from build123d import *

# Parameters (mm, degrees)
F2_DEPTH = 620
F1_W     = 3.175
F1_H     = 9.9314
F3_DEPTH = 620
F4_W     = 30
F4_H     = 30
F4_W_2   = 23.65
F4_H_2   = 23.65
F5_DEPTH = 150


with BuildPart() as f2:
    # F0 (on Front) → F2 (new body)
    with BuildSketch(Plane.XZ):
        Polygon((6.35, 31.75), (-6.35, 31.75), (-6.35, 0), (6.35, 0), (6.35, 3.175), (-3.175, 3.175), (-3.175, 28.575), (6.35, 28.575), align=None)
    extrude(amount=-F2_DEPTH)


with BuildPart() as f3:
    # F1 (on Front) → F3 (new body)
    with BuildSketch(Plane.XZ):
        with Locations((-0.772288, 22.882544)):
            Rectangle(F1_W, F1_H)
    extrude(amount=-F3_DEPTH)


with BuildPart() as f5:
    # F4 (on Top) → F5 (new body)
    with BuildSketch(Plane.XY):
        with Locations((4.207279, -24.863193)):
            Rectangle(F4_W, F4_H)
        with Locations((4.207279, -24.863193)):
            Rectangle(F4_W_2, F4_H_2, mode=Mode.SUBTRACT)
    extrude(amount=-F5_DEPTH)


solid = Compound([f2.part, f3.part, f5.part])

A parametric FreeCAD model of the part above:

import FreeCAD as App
import Part
import Sketcher
from FreeCAD import Vector
Q = App.Units.Quantity

doc = App.newDocument("Part")
body = doc.addObject("PartDesign::Body", "Body")

# Sketch on XZ plane
sketch1 = body.newObject("Sketcher::SketchObject", "Sketch")
sketch1.AttachmentSupport = (doc.getObject("XZ_Plane"), [""])
sketch1.MapMode = "FlatFace"
sketch1.addGeometry(Part.LineSegment(Vector(6.35, 31.75, 0), Vector(-6.35, 31.75, 0)), False)
sketch1.addGeometry(Part.LineSegment(Vector(-6.35, 31.75, 0), Vector(-6.35, 0, 0)), False)
sketch1.addGeometry(Part.LineSegment(Vector(-6.35, 0, 0), Vector(6.35, 0, 0)), False)
sketch1.addGeometry(Part.LineSegment(Vector(6.35, 0, 0), Vector(6.35, 3.175, 0)), False)
sketch1.addGeometry(Part.LineSegment(Vector(6.35, 3.175, 0), Vector(-3.175, 3.175, 0)), False)
sketch1.addGeometry(Part.LineSegment(Vector(-3.175, 3.175, 0), Vector(-3.175, 28.575, 0)), False)
sketch1.addGeometry(Part.LineSegment(Vector(-3.175, 28.575, 0), Vector(6.35, 28.575, 0)), False)
sketch1.addGeometry(Part.LineSegment(Vector(6.35, 28.575, 0), Vector(6.35, 31.75, 0)), False)
sketch1.addConstraint(Sketcher.Constraint("Coincident", 0, 2, 1, 1))
sketch1.addConstraint(Sketcher.Constraint("Coincident", 1, 2, 2, 1))
sketch1.addConstraint(Sketcher.Constraint("Coincident", 2, 2, 3, 1))
sketch1.addConstraint(Sketcher.Constraint("Coincident", 3, 2, 4, 1))
sketch1.addConstraint(Sketcher.Constraint("Coincident", 4, 2, 5, 1))
sketch1.addConstraint(Sketcher.Constraint("Coincident", 5, 2, 6, 1))
sketch1.addConstraint(Sketcher.Constraint("Coincident", 6, 2, 7, 1))
sketch1.addConstraint(Sketcher.Constraint("Coincident", 7, 2, 0, 1))
sketch1.addConstraint(Sketcher.Constraint("Horizontal", 0))
sketch1.addConstraint(Sketcher.Constraint("Vertical", 1))
sketch1.addConstraint(Sketcher.Constraint("Horizontal", 2))
sketch1.addConstraint(Sketcher.Constraint("Vertical", 3))
sketch1.addConstraint(Sketcher.Constraint("Horizontal", 4))
sketch1.addConstraint(Sketcher.Constraint("Vertical", 5))
sketch1.addConstraint(Sketcher.Constraint("Horizontal", 6))
sketch1.addConstraint(Sketcher.Constraint("Vertical", 7))
sketch1.addConstraint(Sketcher.Constraint("Symmetric", 1, 2, 2, 2, -1, 1))
sketch1.addConstraint(Sketcher.Constraint("Vertical", 3, 2, 6, 2))
sketch1.addConstraint(Sketcher.Constraint("Equal", 3, 7))
sketch1.addConstraint(Sketcher.Constraint("DistanceY", 5, 1, 5, 2, Q("1 in")))
sketch1.addConstraint(Sketcher.Constraint("DistanceX", 0, 2, 0, 1, Q("0.5 in")))
sketch1.addConstraint(Sketcher.Constraint("DistanceY", 1, 2, 1, 1, Q("1.25 in")))
sketch1.addConstraint(Sketcher.Constraint("DistanceX", 4, 2, 4, 1, Q("0.375 in")))
pad1 = body.newObject("PartDesign::Pad", "Pad")
pad1.Profile = sketch1
pad1.Length = 620
pad1.Reversed = True
body2 = doc.addObject("PartDesign::Body", "Body001")

# Sketch on XZ plane
sketch2 = body2.newObject("Sketcher::SketchObject", "Sketch001")
sketch2.AttachmentSupport = (doc.getObject("XZ_Plane001"), [""])
sketch2.MapMode = "FlatFace"
sketch2.addGeometry(Part.LineSegment(Vector(-2.359788, 27.848244, 0), Vector(-2.359788, 17.916844, 0)), False)
sketch2.addGeometry(Part.LineSegment(Vector(-2.359788, 17.916844, 0), Vector(0.815212, 17.916844, 0)), False)
sketch2.addGeometry(Part.LineSegment(Vector(0.815212, 17.916844, 0), Vector(0.815212, 27.848244, 0)), False)
sketch2.addGeometry(Part.LineSegment(Vector(0.815212, 27.848244, 0), Vector(-2.359788, 27.848244, 0)), False)
sketch2.addConstraint(Sketcher.Constraint("Coincident", 0, 2, 1, 1))
sketch2.addConstraint(Sketcher.Constraint("Coincident", 1, 2, 2, 1))
sketch2.addConstraint(Sketcher.Constraint("Coincident", 2, 2, 3, 1))
sketch2.addConstraint(Sketcher.Constraint("Coincident", 3, 2, 0, 1))
sketch2.addConstraint(Sketcher.Constraint("Vertical", 0))
sketch2.addConstraint(Sketcher.Constraint("Horizontal", 1))
sketch2.addConstraint(Sketcher.Constraint("Vertical", 2))
sketch2.addConstraint(Sketcher.Constraint("Horizontal", 3))
sketch2.addConstraint(Sketcher.Constraint("DistanceX", 1, 1, 1, 2, Q("0.125 in")))
sketch2.addConstraint(Sketcher.Constraint("DistanceY", 0, 2, 0, 1, Q("0.391 in")))
sketch2.addConstraint(Sketcher.Constraint("DistanceX", 0, 2, -1, 1, 2.359788))
sketch2.addConstraint(Sketcher.Constraint("DistanceY", -1, 1, 0, 2, 17.916844))
pad2 = body2.newObject("PartDesign::Pad", "Pad001")
pad2.Profile = sketch2
pad2.Length = 620
pad2.Reversed = True
body3 = doc.addObject("PartDesign::Body", "Body002")

# Sketch on XY plane
sketch3 = body3.newObject("Sketcher::SketchObject", "Sketch002")
sketch3.AttachmentSupport = (doc.getObject("XY_Plane002"), [""])
sketch3.MapMode = "FlatFace"
sketch3.addGeometry(Part.LineSegment(Vector(-10.792721, -9.863193, 0), Vector(-10.792721, -39.863193, 0)), False)
sketch3.addGeometry(Part.LineSegment(Vector(-10.792721, -39.863193, 0), Vector(19.207279, -39.863193, 0)), False)
sketch3.addGeometry(Part.LineSegment(Vector(19.207279, -39.863193, 0), Vector(19.207279, -9.863193, 0)), False)
sketch3.addGeometry(Part.LineSegment(Vector(19.207279, -9.863193, 0), Vector(-10.792721, -9.863193, 0)), False)
sketch3.addGeometry(Part.LineSegment(Vector(16.032279, -36.688193, 0), Vector(-7.617721, -36.688193, 0)), False)
sketch3.addGeometry(Part.LineSegment(Vector(-7.617721, -36.688193, 0), Vector(-7.617721, -13.038193, 0)), False)
sketch3.addGeometry(Part.LineSegment(Vector(-7.617721, -13.038193, 0), Vector(16.032279, -13.038193, 0)), False)
sketch3.addGeometry(Part.LineSegment(Vector(16.032279, -13.038193, 0), Vector(16.032279, -36.688193, 0)), False)
sketch3.addConstraint(Sketcher.Constraint("Coincident", 0, 2, 1, 1))
sketch3.addConstraint(Sketcher.Constraint("Coincident", 1, 2, 2, 1))
sketch3.addConstraint(Sketcher.Constraint("Coincident", 2, 2, 3, 1))
sketch3.addConstraint(Sketcher.Constraint("Coincident", 3, 2, 0, 1))
sketch3.addConstraint(Sketcher.Constraint("Coincident", 4, 2, 5, 1))
sketch3.addConstraint(Sketcher.Constraint("Coincident", 5, 2, 6, 1))
sketch3.addConstraint(Sketcher.Constraint("Coincident", 6, 2, 7, 1))
sketch3.addConstraint(Sketcher.Constraint("Coincident", 7, 2, 4, 1))
sketch3.addConstraint(Sketcher.Constraint("Vertical", 0))
sketch3.addConstraint(Sketcher.Constraint("Horizontal", 1))
sketch3.addConstraint(Sketcher.Constraint("Vertical", 2))
sketch3.addConstraint(Sketcher.Constraint("Horizontal", 3))
sketch3.addConstraint(Sketcher.Constraint("Horizontal", 4))
sketch3.addConstraint(Sketcher.Constraint("Vertical", 5))
sketch3.addConstraint(Sketcher.Constraint("Horizontal", 6))
sketch3.addConstraint(Sketcher.Constraint("Vertical", 7))
sketch3.addConstraint(Sketcher.Constraint("Equal", 3, 0))
sketch3.addConstraint(Sketcher.Constraint("Equal", 6, 5))
sketch3.addConstraint(Sketcher.Constraint("DistanceX", 0, 2, 4, 2, Q("0.125 in")))
sketch3.addConstraint(Sketcher.Constraint("DistanceY", 0, 2, 4, 2, Q("0.125 in")))
sketch3.addConstraint(Sketcher.Constraint("DistanceY", 5, 2, 3, 2, Q("0.125 in")))
sketch3.addConstraint(Sketcher.Constraint("DistanceX", 1, 1, 1, 2, 30.0))
sketch3.addConstraint(Sketcher.Constraint("DistanceX", 0, 2, -1, 1, 10.792721))
sketch3.addConstraint(Sketcher.Constraint("DistanceY", 0, 2, -1, 1, 39.863193))
pad3 = body3.newObject("PartDesign::Pad", "Pad002")
pad3.Profile = sketch3
pad3.Length = 150
pad3.Reversed = True

doc.recompute()
